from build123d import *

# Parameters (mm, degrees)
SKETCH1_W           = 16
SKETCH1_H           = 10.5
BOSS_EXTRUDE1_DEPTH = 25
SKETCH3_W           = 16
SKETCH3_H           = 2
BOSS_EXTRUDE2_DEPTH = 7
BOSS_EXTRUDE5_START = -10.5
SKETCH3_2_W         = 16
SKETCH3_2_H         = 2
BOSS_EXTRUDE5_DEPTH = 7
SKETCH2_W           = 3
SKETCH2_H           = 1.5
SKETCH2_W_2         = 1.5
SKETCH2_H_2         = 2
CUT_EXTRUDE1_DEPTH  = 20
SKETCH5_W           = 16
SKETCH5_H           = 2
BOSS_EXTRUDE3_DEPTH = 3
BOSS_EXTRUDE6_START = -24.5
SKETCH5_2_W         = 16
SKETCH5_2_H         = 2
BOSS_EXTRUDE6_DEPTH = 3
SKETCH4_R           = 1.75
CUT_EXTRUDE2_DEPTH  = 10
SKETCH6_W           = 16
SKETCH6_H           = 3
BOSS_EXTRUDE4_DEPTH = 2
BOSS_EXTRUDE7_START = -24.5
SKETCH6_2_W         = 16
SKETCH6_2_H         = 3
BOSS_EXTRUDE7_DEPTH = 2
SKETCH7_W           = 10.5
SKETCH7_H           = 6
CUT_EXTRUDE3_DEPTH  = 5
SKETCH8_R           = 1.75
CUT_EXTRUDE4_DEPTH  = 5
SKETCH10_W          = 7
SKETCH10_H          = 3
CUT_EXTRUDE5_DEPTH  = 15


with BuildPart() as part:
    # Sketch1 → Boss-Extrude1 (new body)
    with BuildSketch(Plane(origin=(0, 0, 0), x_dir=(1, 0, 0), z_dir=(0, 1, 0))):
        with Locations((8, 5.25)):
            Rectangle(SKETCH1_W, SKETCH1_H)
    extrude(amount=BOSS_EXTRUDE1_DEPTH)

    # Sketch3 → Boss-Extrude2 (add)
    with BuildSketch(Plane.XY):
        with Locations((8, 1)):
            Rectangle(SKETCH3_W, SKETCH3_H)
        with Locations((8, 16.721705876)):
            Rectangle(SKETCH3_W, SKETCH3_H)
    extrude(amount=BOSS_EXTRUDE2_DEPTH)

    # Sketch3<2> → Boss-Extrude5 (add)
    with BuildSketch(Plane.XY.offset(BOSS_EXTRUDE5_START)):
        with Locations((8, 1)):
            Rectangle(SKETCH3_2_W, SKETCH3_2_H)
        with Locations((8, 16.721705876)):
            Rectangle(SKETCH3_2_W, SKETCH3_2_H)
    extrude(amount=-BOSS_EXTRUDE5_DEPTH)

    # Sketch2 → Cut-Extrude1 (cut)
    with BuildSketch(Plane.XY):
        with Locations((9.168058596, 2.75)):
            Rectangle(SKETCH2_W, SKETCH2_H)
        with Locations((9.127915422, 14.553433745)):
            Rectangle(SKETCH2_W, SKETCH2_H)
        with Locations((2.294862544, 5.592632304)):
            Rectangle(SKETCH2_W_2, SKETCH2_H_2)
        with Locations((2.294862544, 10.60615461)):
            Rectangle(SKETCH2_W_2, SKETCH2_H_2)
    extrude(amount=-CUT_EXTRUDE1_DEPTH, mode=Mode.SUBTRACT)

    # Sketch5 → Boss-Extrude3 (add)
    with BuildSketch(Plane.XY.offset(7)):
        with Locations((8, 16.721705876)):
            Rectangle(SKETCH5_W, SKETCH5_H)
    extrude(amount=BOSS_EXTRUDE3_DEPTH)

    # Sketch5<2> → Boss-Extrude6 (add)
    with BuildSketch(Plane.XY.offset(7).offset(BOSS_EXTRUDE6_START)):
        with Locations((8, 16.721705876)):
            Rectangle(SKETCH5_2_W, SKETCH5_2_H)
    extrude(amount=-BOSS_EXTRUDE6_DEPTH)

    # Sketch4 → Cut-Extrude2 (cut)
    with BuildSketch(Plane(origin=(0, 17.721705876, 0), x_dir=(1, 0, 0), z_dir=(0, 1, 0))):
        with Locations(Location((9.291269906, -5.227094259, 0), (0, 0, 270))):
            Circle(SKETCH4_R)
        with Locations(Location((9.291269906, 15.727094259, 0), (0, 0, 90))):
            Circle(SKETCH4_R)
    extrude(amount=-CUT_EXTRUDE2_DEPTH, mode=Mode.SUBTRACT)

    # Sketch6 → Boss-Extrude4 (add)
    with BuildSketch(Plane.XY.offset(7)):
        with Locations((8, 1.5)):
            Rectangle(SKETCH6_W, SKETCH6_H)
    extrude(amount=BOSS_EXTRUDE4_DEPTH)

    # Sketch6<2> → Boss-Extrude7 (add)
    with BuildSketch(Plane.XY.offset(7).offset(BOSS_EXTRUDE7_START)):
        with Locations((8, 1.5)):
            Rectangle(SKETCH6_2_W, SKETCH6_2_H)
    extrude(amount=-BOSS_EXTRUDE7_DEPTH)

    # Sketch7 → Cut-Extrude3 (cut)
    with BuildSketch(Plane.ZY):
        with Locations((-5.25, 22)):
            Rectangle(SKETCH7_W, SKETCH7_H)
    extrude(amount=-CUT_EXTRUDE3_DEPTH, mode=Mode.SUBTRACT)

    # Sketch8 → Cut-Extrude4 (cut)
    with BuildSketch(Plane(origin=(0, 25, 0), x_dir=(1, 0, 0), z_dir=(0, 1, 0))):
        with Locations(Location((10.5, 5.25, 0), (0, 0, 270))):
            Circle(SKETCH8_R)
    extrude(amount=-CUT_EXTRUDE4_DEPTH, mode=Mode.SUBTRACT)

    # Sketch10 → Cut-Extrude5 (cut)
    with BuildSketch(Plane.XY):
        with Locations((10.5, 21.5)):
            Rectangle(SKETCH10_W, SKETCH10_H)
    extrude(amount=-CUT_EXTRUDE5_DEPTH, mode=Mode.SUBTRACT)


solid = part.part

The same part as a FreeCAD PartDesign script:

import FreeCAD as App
import Part
import Sketcher
from FreeCAD import Vector
Q = App.Units.Quantity


def add_polygon(sketch, points):
    """Adds a closed chain of lines whose ends are joined by coincident constraints."""
    first, n = sketch.GeometryCount, len(points)
    for a, b in zip(points, points[1:] + points[:1]):
        sketch.addGeometry(Part.LineSegment(App.Vector(*a, 0), App.Vector(*b, 0)), False)
    for i in range(n):
        sketch.addConstraint(Sketcher.Constraint("Coincident", first + i, 2, first + (i + 1) % n, 1))

doc = App.newDocument("Part")
body = doc.addObject("PartDesign::Body", "Body")

sketch1 = body.newObject("Sketcher::SketchObject", "Sketch")
sketch1.AttachmentSupport = (doc.getObject("XZ_Plane"), [""])
sketch1.MapMode = "FlatFace"
add_polygon(sketch1, [(0, -10.5), (0, 0), (16, 0), (16, -10.5)])
sketch1.addConstraint([
    Sketcher.Constraint("Vertical", 0),
    Sketcher.Constraint("Horizontal", 1),
    Sketcher.Constraint("Vertical", 2),
    Sketcher.Constraint("Horizontal", 3),
    Sketcher.Constraint("Coincident", 0, 2, -1, 1),
    Sketcher.Constraint("DistanceX", 1, 1, 1, 2, Q("16 mm")),
    Sketcher.Constraint("DistanceY", 0, 1, 0, 2, Q("10.5 mm")),
])
pad1 = body.newObject("PartDesign::Pad", "Pad")
pad1.Profile = sketch1
pad1.Length = 25
pad1.Reversed = True

sketch2 = body.newObject("Sketcher::SketchObject", "Sketch001")
sketch2.AttachmentSupport = (doc.getObject("XY_Plane"), [""])
sketch2.MapMode = "FlatFace"
add_polygon(sketch2, [(0, 2), (0, 0), (16, 0), (16, 2)])
add_polygon(sketch2, [(0, 17.721706), (0, 15.721706), (16, 15.721706), (16, 17.721706)])
sketch2.addConstraint([
    Sketcher.Constraint("Vertical", 0),
    Sketcher.Constraint("Horizontal", 1),
    Sketcher.Constraint("Vertical", 2),
    Sketcher.Constraint("Horizontal", 3),
    Sketcher.Constraint("Vertical", 4),
    Sketcher.Constraint("Horizontal", 5),
    Sketcher.Constraint("Vertical", 6),
    Sketcher.Constraint("Horizontal", 7),
    Sketcher.Constraint("Coincident", 0, 2, -1, 1),
    Sketcher.Constraint("PointOnObject", 4, 2, -2),
    Sketcher.Constraint("Vertical", 2, 2, 5, 2),
    Sketcher.Constraint("Equal", 2, 4),
    Sketcher.Constraint("DistanceX", 1, 1, 1, 2, Q("16 mm")),
    Sketcher.Constraint("DistanceY", 0, 2, 0, 1, Q("2 mm")),
    Sketcher.Constraint("DistanceY", -1, 1, 4, 2, Q("15.721706 mm")),
])
pad2 = body.newObject("PartDesign::Pad", "Pad001")
pad2.Profile = sketch2
pad2.Length = 7

sketch3 = body.newObject("Sketcher::SketchObject", "Sketch002")
sketch3.AttachmentSupport = (doc.getObject("XY_Plane"), [""])
sketch3.MapMode = "FlatFace"
sketch3.AttachmentOffset = App.Placement(Vector(0, 0, -10.5), App.Rotation())
add_polygon(sketch3, [(0, 2), (0, 0), (16, 0), (16, 2)])
add_polygon(sketch3, [(0, 17.721706), (0, 15.721706), (16, 15.721706), (16, 17.721706)])
sketch3.addConstraint([
    Sketcher.Constraint("Vertical", 0),
    Sketcher.Constraint("Horizontal", 1),
    Sketcher.Constraint("Vertical", 2),
    Sketcher.Constraint("Horizontal", 3),
    Sketcher.Constraint("Vertical", 4),
    Sketcher.Constraint("Horizontal", 5),
    Sketcher.Constraint("Vertical", 6),
    Sketcher.Constraint("Horizontal", 7),
    Sketcher.Constraint("Coincident", 0, 2, -1, 1),
    Sketcher.Constraint("PointOnObject", 4, 2, -2),
    Sketcher.Constraint("Vertical", 2, 2, 5, 2),
    Sketcher.Constraint("Equal", 2, 4),
    Sketcher.Constraint("DistanceX", 1, 1, 1, 2, Q("16 mm")),
    Sketcher.Constraint("DistanceY", 0, 2, 0, 1, Q("2 mm")),
    Sketcher.Constraint("DistanceY", -1, 1, 4, 2, Q("15.721706 mm")),
])
pad3 = body.newObject("PartDesign::Pad", "Pad002")
pad3.Profile = sketch3
pad3.Length = 7
pad3.Reversed = True

sketch4 = body.newObject("Sketcher::SketchObject", "Sketch003")
sketch4.AttachmentSupport = (doc.getObject("XY_Plane"), [""])
sketch4.MapMode = "FlatFace"
add_polygon(sketch4, [(7.668059, 3.5), (7.668059, 2), (10.668059, 2), (10.668059, 3.5)])
add_polygon(sketch4, [(7.627915, 15.303434), (7.627915, 13.803434), (10.627915, 13.803434), (10.627915, 15.303434)])
add_polygon(sketch4, [(1.544863, 6.592632), (1.544863, 4.592632), (3.044863, 4.592632), (3.044863, 6.592632)])
add_polygon(sketch4, [(1.544863, 11.606155), (1.544863, 9.606155), (3.044863, 9.606155), (3.044863, 11.606155)])
sketch4.addConstraint([
    Sketcher.Constraint("Vertical", 0),
    Sketcher.Constraint("Horizontal", 1),
    Sketcher.Constraint("Vertical", 2),
    Sketcher.Constraint("Horizontal", 3),
    Sketcher.Constraint("Vertical", 4),
    Sketcher.Constraint("Horizontal", 5),
    Sketcher.Constraint("Vertical", 6),
    Sketcher.Constraint("Horizontal", 7),
    Sketcher.Constraint("Vertical", 8),
    Sketcher.Constraint("Horizontal", 9),
    Sketcher.Constraint("Vertical", 10),
    Sketcher.Constraint("Horizontal", 11),
    Sketcher.Constraint("Vertical", 12),
    Sketcher.Constraint("Horizontal", 13),
    Sketcher.Constraint("Vertical", 14),
    Sketcher.Constraint("Horizontal", 15),
    Sketcher.Constraint("Vertical", 11, 2, 12, 2),
    Sketcher.Constraint("Vertical", 10, 2, 13, 2),
    Sketcher.Constraint("Equal", 3, 5),
    Sketcher.Constraint("Equal", 15, 0),
    Sketcher.Constraint("Equal", 2, 4),
    Sketcher.Constraint("Equal", 10, 12),
    Sketcher.Constraint("DistanceX", 1, 1, 1, 2, Q("3 mm")),
    Sketcher.Constraint("DistanceY", 8, 2, 8, 1, Q("2 mm")),
    Sketcher.Constraint("DistanceX", 9, 1, 9, 2, Q("1.5 mm")),
    Sketcher.Constraint("DistanceY", -1, 1, 0, 2, Q("2 mm")),
    Sketcher.Constraint("DistanceY", 8, 2, 4, 2, Q("9.210801 mm")),
    Sketcher.Constraint("DistanceX", -1, 1, 0, 2, Q("7.668059 mm")),
    Sketcher.Constraint("DistanceY", 12, 2, 4, 2, Q("4.197279 mm")),
    Sketcher.Constraint("DistanceX", -1, 1, 4, 2, Q("7.627915 mm")),
    Sketcher.Constraint("DistanceY", -1, 1, 4, 2, Q("13.803434 mm")),
    Sketcher.Constraint("DistanceX", -1, 1, 8, 2, Q("1.544863 mm")),
])
pocket1 = body.newObject("PartDesign::Pocket", "Pocket")
pocket1.Profile = sketch4
pocket1.Length = 20

sketch5 = body.newObject("Sketcher::SketchObject", "Sketch004")
sketch5.AttachmentSupport = (doc.getObject("XY_Plane"), [""])
sketch5.MapMode = "FlatFace"
sketch5.AttachmentOffset = App.Placement(Vector(0, 0, 7), App.Rotation())
add_polygon(sketch5, [(0, 17.721706), (0, 15.721706), (16, 15.721706), (16, 17.721706)])
sketch5.addConstraint([
    Sketcher.Constraint("Vertical", 0),
    Sketcher.Constraint("Horizontal", 1),
    Sketcher.Constraint("Vertical", 2),
    Sketcher.Constraint("Horizontal", 3),
    Sketcher.Constraint("PointOnObject", 0, 2, -2),
    Sketcher.Constraint("DistanceX", 1, 1, 1, 2, Q("16 mm")),
    Sketcher.Constraint("DistanceY", 0, 2, 0, 1, Q("2 mm")),
    Sketcher.Constraint("DistanceY", -1, 1, 0, 2, Q("15.721706 mm")),
])
pad4 = body.newObject("PartDesign::Pad", "Pad003")
pad4.Profile = sketch5
pad4.Length = 3

sketch6 = body.newObject("Sketcher::SketchObject", "Sketch005")
sketch6.AttachmentSupport = (doc.getObject("XY_Plane"), [""])
sketch6.MapMode = "FlatFace"
sketch6.AttachmentOffset = App.Placement(Vector(0, 0, -17.5), App.Rotation())
add_polygon(sketch6, [(0, 17.721706), (0, 15.721706), (16, 15.721706), (16, 17.721706)])
sketch6.addConstraint([
    Sketcher.Constraint("Vertical", 0),
    Sketcher.Constraint("Horizontal", 1),
    Sketcher.Constraint("Vertical", 2),
    Sketcher.Constraint("Horizontal", 3),
    Sketcher.Constraint("PointOnObject", 0, 2, -2),
    Sketcher.Constraint("DistanceX", 1, 1, 1, 2, Q("16 mm")),
    Sketcher.Constraint("DistanceY", 0, 2, 0, 1, Q("2 mm")),
    Sketcher.Constraint("DistanceY", -1, 1, 0, 2, Q("15.721706 mm")),
])
pad5 = body.newObject("PartDesign::Pad", "Pad004")
pad5.Profile = sketch6
pad5.Length = 3
pad5.Reversed = True

sketch7 = body.newObject("Sketcher::SketchObject", "Sketch006")
sketch7.AttachmentSupport = (doc.getObject("XZ_Plane"), [""])
sketch7.MapMode = "FlatFace"
sketch7.AttachmentOffset = App.Placement(Vector(0, 0, -17.721706), App.Rotation())
sketch7.addGeometry([
    Part.Circle(Vector(9.29127, 5.227094, 0), Vector(0, 0, 1), 1.75),
    Part.Circle(Vector(9.29127, -15.727094, 0), Vector(0, 0, 1), 1.75),
], False)
sketch7.addConstraint([
    Sketcher.Constraint("Equal", 0, 1),
    Sketcher.Constraint("Vertical", 0, 3, 1, 3),
    Sketcher.Constraint("Diameter", 0, Q("3.5 mm")),
    Sketcher.Constraint("DistanceX", -1, 1, 0, 3, Q("9.29127 mm")),
    Sketcher.Constraint("DistanceY", 1, 3, 0, 3, Q("20.954189 mm")),
    Sketcher.Constraint("DistanceY", -1, 1, 0, 3, Q("5.227094 mm")),
])
pocket2 = body.newObject("PartDesign::Pocket", "Pocket001")
pocket2.Profile = sketch7
pocket2.Length = 10
pocket2.Reversed = True

sketch8 = body.newObject("Sketcher::SketchObject", "Sketch007")
sketch8.AttachmentSupport = (doc.getObject("XY_Plane"), [""])
sketch8.MapMode = "FlatFace"
sketch8.AttachmentOffset = App.Placement(Vector(0, 0, 7), App.Rotation())
add_polygon(sketch8, [(0, 3), (0, 0), (16, 0), (16, 3)])
sketch8.addConstraint([
    Sketcher.Constraint("Vertical", 0),
    Sketcher.Constraint("Horizontal", 1),
    Sketcher.Constraint("Vertical", 2),
    Sketcher.Constraint("Horizontal", 3),
    Sketcher.Constraint("Coincident", 0, 2, -1, 1),
    Sketcher.Constraint("DistanceX", 1, 1, 1, 2, Q("16 mm")),
    Sketcher.Constraint("DistanceY", 0, 2, 0, 1, Q("3 mm")),
])
pad6 = body.newObject("PartDesign::Pad", "Pad005")
pad6.Profile = sketch8
pad6.Length = 2

sketch9 = body.newObject("Sketcher::SketchObject", "Sketch008")
sketch9.AttachmentSupport = (doc.getObject("XY_Plane"), [""])
sketch9.MapMode = "FlatFace"
sketch9.AttachmentOffset = App.Placement(Vector(0, 0, -17.5), App.Rotation())
add_polygon(sketch9, [(0, 3), (0, 0), (16, 0), (16, 3)])
sketch9.addConstraint([
    Sketcher.Constraint("Vertical", 0),
    Sketcher.Constraint("Horizontal", 1),
    Sketcher.Constraint("Vertical", 2),
    Sketcher.Constraint("Horizontal", 3),
    Sketcher.Constraint("Coincident", 0, 2, -1, 1),
    Sketcher.Constraint("DistanceX", 1, 1, 1, 2, Q("16 mm")),
    Sketcher.Constraint("DistanceY", 0, 2, 0, 1, Q("3 mm")),
])
pad7 = body.newObject("PartDesign::Pad", "Pad006")
pad7.Profile = sketch9
pad7.Length = 2
pad7.Reversed = True

sketch10 = body.newObject("Sketcher::SketchObject", "Sketch009")
sketch10.AttachmentSupport = (doc.getObject("YZ_Plane"), [""])
sketch10.MapMode = "FlatFace"
add_polygon(sketch10, [(25, -10.5), (19, -10.5), (19, 0), (25, 0)])
sketch10.addConstraint([
    Sketcher.Constraint("Horizontal", 0),
    Sketcher.Constraint("Vertical", 1),
    Sketcher.Constraint("Horizontal", 2),
    Sketcher.Constraint("Vertical", 3),
    Sketcher.Constraint("PointOnObject", 1, 2, -1),
    Sketcher.Constraint("DistanceX", 0, 2, 0, 1, Q("6 mm")),
    Sketcher.Constraint("DistanceY", 1, 1, 1, 2, Q("10.5 mm")),
    Sketcher.Constraint("DistanceX", -1, 1, 0, 2, Q("19 mm")),
])
pocket3 = body.newObject("PartDesign::Pocket", "Pocket002")
pocket3.Profile = sketch10
pocket3.Length = 5
pocket3.Reversed = True

sketch11 = body.newObject("Sketcher::SketchObject", "Sketch010")
sketch11.AttachmentSupport = (doc.getObject("XZ_Plane"), [""])
sketch11.MapMode = "FlatFace"
sketch11.AttachmentOffset = App.Placement(Vector(0, 0, -25), App.Rotation())
sketch11.addGeometry(Part.Circle(Vector(10.5, -5.25, 0), Vector(0, 0, 1), 1.75), False)
sketch11.addConstraint([
    Sketcher.Constraint("Diameter", 0, Q("3.5 mm")),
    Sketcher.Constraint("DistanceX", -1, 1, 0, 3, Q("10.5 mm")),
    Sketcher.Constraint("DistanceY", 0, 3, -1, 1, Q("5.25 mm")),
])
pocket4 = body.newObject("PartDesign::Pocket", "Pocket003")
pocket4.Profile = sketch11
pocket4.Length = 5
pocket4.Reversed = True

sketch12 = body.newObject("Sketcher::SketchObject", "Sketch011")
sketch12.AttachmentSupport = (doc.getObject("XY_Plane"), [""])
sketch12.MapMode = "FlatFace"
add_polygon(sketch12, [(7, 23), (7, 20), (14, 20), (14, 23)])
sketch12.addConstraint([
    Sketcher.Constraint("Vertical", 0),
    Sketcher.Constraint("Horizontal", 1),
    Sketcher.Constraint("Vertical", 2),
    Sketcher.Constraint("Horizontal", 3),
    Sketcher.Constraint("DistanceX", 1, 1, 1, 2, Q("7 mm")),
    Sketcher.Constraint("DistanceY", 0, 2, 0, 1, Q("3 mm")),
    Sketcher.Constraint("DistanceX", -1, 1, 0, 2, Q("7 mm")),
    Sketcher.Constraint("DistanceY", -1, 1, 0, 2, Q("20 mm")),
])
pocket5 = body.newObject("PartDesign::Pocket", "Pocket004")
pocket5.Profile = sketch12
pocket5.Length = 15

doc.recompute()
